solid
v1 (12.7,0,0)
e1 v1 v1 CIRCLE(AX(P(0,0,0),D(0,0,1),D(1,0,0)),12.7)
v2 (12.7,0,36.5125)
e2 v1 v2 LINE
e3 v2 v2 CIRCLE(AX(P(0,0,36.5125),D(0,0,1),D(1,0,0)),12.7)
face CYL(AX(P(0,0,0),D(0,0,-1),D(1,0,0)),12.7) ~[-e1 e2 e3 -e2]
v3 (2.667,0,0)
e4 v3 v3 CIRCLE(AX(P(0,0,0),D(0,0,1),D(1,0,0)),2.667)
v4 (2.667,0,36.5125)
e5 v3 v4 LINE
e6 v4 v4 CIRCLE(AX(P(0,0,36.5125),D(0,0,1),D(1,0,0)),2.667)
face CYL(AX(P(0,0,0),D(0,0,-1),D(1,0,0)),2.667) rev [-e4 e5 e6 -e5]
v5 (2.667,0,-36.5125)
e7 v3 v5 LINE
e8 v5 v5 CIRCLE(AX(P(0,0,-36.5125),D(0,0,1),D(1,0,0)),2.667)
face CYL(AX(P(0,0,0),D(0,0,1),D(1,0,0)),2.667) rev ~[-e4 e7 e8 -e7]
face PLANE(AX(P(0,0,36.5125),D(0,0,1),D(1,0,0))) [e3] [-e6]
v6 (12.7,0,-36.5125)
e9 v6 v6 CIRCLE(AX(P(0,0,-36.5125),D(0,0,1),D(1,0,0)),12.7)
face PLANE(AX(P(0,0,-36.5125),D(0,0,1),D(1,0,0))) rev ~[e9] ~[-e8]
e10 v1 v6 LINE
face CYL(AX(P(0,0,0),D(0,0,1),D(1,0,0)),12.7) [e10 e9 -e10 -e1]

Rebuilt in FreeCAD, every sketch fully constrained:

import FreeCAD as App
import Part
import Sketcher
from FreeCAD import Vector
Q = App.Units.Quantity

doc = App.newDocument("Part")
params = doc.addObject("Spreadsheet::Sheet", "Params")
for row, (alias, value) in enumerate([
    ("sketch1_diameter", "1 in"),
    ("sketch1_diameter2", "0.21 in"),
    ("pad1_length", "2.875 in"),
], start=1):
    params.set(f"A{row}", alias)
    params.set(f"B{row}", "=" + value)
    params.setAlias(f"B{row}", alias)

body = doc.addObject("PartDesign::Body", "Body")

sketch1 = body.newObject("Sketcher::SketchObject", "Sketch")
sketch1.AttachmentSupport = (doc.getObject("XY_Plane"), [""])
sketch1.MapMode = "FlatFace"
sketch1.addGeometry(Part.Circle(Vector(0, 0, 0), Vector(0, 0, 1), 12.7), False)
sketch1.addGeometry(Part.Circle(Vector(0, 0, 0), Vector(0, 0, 1), 2.7), False)
sketch1.addConstraint(Sketcher.Constraint("Coincident", 0, 3, -1, 1))
sketch1.addConstraint(Sketcher.Constraint("Coincident", 1, 3, -1, 1))
sketch1.addConstraint(Sketcher.Constraint("Diameter", 0, Q("1 in")))
sketch1.addConstraint(Sketcher.Constraint("Diameter", 1, Q("0.21 in")))
sketch1.setExpression("Constraints[2]", "Params.sketch1_diameter")
sketch1.setExpression("Constraints[3]", "Params.sketch1_diameter2")
pad1 = body.newObject("PartDesign::Pad", "Pad")
pad1.Profile = sketch1
pad1.setExpression("Length", "Params.pad1_length")
pad1.Midplane = True

doc.recompute()
